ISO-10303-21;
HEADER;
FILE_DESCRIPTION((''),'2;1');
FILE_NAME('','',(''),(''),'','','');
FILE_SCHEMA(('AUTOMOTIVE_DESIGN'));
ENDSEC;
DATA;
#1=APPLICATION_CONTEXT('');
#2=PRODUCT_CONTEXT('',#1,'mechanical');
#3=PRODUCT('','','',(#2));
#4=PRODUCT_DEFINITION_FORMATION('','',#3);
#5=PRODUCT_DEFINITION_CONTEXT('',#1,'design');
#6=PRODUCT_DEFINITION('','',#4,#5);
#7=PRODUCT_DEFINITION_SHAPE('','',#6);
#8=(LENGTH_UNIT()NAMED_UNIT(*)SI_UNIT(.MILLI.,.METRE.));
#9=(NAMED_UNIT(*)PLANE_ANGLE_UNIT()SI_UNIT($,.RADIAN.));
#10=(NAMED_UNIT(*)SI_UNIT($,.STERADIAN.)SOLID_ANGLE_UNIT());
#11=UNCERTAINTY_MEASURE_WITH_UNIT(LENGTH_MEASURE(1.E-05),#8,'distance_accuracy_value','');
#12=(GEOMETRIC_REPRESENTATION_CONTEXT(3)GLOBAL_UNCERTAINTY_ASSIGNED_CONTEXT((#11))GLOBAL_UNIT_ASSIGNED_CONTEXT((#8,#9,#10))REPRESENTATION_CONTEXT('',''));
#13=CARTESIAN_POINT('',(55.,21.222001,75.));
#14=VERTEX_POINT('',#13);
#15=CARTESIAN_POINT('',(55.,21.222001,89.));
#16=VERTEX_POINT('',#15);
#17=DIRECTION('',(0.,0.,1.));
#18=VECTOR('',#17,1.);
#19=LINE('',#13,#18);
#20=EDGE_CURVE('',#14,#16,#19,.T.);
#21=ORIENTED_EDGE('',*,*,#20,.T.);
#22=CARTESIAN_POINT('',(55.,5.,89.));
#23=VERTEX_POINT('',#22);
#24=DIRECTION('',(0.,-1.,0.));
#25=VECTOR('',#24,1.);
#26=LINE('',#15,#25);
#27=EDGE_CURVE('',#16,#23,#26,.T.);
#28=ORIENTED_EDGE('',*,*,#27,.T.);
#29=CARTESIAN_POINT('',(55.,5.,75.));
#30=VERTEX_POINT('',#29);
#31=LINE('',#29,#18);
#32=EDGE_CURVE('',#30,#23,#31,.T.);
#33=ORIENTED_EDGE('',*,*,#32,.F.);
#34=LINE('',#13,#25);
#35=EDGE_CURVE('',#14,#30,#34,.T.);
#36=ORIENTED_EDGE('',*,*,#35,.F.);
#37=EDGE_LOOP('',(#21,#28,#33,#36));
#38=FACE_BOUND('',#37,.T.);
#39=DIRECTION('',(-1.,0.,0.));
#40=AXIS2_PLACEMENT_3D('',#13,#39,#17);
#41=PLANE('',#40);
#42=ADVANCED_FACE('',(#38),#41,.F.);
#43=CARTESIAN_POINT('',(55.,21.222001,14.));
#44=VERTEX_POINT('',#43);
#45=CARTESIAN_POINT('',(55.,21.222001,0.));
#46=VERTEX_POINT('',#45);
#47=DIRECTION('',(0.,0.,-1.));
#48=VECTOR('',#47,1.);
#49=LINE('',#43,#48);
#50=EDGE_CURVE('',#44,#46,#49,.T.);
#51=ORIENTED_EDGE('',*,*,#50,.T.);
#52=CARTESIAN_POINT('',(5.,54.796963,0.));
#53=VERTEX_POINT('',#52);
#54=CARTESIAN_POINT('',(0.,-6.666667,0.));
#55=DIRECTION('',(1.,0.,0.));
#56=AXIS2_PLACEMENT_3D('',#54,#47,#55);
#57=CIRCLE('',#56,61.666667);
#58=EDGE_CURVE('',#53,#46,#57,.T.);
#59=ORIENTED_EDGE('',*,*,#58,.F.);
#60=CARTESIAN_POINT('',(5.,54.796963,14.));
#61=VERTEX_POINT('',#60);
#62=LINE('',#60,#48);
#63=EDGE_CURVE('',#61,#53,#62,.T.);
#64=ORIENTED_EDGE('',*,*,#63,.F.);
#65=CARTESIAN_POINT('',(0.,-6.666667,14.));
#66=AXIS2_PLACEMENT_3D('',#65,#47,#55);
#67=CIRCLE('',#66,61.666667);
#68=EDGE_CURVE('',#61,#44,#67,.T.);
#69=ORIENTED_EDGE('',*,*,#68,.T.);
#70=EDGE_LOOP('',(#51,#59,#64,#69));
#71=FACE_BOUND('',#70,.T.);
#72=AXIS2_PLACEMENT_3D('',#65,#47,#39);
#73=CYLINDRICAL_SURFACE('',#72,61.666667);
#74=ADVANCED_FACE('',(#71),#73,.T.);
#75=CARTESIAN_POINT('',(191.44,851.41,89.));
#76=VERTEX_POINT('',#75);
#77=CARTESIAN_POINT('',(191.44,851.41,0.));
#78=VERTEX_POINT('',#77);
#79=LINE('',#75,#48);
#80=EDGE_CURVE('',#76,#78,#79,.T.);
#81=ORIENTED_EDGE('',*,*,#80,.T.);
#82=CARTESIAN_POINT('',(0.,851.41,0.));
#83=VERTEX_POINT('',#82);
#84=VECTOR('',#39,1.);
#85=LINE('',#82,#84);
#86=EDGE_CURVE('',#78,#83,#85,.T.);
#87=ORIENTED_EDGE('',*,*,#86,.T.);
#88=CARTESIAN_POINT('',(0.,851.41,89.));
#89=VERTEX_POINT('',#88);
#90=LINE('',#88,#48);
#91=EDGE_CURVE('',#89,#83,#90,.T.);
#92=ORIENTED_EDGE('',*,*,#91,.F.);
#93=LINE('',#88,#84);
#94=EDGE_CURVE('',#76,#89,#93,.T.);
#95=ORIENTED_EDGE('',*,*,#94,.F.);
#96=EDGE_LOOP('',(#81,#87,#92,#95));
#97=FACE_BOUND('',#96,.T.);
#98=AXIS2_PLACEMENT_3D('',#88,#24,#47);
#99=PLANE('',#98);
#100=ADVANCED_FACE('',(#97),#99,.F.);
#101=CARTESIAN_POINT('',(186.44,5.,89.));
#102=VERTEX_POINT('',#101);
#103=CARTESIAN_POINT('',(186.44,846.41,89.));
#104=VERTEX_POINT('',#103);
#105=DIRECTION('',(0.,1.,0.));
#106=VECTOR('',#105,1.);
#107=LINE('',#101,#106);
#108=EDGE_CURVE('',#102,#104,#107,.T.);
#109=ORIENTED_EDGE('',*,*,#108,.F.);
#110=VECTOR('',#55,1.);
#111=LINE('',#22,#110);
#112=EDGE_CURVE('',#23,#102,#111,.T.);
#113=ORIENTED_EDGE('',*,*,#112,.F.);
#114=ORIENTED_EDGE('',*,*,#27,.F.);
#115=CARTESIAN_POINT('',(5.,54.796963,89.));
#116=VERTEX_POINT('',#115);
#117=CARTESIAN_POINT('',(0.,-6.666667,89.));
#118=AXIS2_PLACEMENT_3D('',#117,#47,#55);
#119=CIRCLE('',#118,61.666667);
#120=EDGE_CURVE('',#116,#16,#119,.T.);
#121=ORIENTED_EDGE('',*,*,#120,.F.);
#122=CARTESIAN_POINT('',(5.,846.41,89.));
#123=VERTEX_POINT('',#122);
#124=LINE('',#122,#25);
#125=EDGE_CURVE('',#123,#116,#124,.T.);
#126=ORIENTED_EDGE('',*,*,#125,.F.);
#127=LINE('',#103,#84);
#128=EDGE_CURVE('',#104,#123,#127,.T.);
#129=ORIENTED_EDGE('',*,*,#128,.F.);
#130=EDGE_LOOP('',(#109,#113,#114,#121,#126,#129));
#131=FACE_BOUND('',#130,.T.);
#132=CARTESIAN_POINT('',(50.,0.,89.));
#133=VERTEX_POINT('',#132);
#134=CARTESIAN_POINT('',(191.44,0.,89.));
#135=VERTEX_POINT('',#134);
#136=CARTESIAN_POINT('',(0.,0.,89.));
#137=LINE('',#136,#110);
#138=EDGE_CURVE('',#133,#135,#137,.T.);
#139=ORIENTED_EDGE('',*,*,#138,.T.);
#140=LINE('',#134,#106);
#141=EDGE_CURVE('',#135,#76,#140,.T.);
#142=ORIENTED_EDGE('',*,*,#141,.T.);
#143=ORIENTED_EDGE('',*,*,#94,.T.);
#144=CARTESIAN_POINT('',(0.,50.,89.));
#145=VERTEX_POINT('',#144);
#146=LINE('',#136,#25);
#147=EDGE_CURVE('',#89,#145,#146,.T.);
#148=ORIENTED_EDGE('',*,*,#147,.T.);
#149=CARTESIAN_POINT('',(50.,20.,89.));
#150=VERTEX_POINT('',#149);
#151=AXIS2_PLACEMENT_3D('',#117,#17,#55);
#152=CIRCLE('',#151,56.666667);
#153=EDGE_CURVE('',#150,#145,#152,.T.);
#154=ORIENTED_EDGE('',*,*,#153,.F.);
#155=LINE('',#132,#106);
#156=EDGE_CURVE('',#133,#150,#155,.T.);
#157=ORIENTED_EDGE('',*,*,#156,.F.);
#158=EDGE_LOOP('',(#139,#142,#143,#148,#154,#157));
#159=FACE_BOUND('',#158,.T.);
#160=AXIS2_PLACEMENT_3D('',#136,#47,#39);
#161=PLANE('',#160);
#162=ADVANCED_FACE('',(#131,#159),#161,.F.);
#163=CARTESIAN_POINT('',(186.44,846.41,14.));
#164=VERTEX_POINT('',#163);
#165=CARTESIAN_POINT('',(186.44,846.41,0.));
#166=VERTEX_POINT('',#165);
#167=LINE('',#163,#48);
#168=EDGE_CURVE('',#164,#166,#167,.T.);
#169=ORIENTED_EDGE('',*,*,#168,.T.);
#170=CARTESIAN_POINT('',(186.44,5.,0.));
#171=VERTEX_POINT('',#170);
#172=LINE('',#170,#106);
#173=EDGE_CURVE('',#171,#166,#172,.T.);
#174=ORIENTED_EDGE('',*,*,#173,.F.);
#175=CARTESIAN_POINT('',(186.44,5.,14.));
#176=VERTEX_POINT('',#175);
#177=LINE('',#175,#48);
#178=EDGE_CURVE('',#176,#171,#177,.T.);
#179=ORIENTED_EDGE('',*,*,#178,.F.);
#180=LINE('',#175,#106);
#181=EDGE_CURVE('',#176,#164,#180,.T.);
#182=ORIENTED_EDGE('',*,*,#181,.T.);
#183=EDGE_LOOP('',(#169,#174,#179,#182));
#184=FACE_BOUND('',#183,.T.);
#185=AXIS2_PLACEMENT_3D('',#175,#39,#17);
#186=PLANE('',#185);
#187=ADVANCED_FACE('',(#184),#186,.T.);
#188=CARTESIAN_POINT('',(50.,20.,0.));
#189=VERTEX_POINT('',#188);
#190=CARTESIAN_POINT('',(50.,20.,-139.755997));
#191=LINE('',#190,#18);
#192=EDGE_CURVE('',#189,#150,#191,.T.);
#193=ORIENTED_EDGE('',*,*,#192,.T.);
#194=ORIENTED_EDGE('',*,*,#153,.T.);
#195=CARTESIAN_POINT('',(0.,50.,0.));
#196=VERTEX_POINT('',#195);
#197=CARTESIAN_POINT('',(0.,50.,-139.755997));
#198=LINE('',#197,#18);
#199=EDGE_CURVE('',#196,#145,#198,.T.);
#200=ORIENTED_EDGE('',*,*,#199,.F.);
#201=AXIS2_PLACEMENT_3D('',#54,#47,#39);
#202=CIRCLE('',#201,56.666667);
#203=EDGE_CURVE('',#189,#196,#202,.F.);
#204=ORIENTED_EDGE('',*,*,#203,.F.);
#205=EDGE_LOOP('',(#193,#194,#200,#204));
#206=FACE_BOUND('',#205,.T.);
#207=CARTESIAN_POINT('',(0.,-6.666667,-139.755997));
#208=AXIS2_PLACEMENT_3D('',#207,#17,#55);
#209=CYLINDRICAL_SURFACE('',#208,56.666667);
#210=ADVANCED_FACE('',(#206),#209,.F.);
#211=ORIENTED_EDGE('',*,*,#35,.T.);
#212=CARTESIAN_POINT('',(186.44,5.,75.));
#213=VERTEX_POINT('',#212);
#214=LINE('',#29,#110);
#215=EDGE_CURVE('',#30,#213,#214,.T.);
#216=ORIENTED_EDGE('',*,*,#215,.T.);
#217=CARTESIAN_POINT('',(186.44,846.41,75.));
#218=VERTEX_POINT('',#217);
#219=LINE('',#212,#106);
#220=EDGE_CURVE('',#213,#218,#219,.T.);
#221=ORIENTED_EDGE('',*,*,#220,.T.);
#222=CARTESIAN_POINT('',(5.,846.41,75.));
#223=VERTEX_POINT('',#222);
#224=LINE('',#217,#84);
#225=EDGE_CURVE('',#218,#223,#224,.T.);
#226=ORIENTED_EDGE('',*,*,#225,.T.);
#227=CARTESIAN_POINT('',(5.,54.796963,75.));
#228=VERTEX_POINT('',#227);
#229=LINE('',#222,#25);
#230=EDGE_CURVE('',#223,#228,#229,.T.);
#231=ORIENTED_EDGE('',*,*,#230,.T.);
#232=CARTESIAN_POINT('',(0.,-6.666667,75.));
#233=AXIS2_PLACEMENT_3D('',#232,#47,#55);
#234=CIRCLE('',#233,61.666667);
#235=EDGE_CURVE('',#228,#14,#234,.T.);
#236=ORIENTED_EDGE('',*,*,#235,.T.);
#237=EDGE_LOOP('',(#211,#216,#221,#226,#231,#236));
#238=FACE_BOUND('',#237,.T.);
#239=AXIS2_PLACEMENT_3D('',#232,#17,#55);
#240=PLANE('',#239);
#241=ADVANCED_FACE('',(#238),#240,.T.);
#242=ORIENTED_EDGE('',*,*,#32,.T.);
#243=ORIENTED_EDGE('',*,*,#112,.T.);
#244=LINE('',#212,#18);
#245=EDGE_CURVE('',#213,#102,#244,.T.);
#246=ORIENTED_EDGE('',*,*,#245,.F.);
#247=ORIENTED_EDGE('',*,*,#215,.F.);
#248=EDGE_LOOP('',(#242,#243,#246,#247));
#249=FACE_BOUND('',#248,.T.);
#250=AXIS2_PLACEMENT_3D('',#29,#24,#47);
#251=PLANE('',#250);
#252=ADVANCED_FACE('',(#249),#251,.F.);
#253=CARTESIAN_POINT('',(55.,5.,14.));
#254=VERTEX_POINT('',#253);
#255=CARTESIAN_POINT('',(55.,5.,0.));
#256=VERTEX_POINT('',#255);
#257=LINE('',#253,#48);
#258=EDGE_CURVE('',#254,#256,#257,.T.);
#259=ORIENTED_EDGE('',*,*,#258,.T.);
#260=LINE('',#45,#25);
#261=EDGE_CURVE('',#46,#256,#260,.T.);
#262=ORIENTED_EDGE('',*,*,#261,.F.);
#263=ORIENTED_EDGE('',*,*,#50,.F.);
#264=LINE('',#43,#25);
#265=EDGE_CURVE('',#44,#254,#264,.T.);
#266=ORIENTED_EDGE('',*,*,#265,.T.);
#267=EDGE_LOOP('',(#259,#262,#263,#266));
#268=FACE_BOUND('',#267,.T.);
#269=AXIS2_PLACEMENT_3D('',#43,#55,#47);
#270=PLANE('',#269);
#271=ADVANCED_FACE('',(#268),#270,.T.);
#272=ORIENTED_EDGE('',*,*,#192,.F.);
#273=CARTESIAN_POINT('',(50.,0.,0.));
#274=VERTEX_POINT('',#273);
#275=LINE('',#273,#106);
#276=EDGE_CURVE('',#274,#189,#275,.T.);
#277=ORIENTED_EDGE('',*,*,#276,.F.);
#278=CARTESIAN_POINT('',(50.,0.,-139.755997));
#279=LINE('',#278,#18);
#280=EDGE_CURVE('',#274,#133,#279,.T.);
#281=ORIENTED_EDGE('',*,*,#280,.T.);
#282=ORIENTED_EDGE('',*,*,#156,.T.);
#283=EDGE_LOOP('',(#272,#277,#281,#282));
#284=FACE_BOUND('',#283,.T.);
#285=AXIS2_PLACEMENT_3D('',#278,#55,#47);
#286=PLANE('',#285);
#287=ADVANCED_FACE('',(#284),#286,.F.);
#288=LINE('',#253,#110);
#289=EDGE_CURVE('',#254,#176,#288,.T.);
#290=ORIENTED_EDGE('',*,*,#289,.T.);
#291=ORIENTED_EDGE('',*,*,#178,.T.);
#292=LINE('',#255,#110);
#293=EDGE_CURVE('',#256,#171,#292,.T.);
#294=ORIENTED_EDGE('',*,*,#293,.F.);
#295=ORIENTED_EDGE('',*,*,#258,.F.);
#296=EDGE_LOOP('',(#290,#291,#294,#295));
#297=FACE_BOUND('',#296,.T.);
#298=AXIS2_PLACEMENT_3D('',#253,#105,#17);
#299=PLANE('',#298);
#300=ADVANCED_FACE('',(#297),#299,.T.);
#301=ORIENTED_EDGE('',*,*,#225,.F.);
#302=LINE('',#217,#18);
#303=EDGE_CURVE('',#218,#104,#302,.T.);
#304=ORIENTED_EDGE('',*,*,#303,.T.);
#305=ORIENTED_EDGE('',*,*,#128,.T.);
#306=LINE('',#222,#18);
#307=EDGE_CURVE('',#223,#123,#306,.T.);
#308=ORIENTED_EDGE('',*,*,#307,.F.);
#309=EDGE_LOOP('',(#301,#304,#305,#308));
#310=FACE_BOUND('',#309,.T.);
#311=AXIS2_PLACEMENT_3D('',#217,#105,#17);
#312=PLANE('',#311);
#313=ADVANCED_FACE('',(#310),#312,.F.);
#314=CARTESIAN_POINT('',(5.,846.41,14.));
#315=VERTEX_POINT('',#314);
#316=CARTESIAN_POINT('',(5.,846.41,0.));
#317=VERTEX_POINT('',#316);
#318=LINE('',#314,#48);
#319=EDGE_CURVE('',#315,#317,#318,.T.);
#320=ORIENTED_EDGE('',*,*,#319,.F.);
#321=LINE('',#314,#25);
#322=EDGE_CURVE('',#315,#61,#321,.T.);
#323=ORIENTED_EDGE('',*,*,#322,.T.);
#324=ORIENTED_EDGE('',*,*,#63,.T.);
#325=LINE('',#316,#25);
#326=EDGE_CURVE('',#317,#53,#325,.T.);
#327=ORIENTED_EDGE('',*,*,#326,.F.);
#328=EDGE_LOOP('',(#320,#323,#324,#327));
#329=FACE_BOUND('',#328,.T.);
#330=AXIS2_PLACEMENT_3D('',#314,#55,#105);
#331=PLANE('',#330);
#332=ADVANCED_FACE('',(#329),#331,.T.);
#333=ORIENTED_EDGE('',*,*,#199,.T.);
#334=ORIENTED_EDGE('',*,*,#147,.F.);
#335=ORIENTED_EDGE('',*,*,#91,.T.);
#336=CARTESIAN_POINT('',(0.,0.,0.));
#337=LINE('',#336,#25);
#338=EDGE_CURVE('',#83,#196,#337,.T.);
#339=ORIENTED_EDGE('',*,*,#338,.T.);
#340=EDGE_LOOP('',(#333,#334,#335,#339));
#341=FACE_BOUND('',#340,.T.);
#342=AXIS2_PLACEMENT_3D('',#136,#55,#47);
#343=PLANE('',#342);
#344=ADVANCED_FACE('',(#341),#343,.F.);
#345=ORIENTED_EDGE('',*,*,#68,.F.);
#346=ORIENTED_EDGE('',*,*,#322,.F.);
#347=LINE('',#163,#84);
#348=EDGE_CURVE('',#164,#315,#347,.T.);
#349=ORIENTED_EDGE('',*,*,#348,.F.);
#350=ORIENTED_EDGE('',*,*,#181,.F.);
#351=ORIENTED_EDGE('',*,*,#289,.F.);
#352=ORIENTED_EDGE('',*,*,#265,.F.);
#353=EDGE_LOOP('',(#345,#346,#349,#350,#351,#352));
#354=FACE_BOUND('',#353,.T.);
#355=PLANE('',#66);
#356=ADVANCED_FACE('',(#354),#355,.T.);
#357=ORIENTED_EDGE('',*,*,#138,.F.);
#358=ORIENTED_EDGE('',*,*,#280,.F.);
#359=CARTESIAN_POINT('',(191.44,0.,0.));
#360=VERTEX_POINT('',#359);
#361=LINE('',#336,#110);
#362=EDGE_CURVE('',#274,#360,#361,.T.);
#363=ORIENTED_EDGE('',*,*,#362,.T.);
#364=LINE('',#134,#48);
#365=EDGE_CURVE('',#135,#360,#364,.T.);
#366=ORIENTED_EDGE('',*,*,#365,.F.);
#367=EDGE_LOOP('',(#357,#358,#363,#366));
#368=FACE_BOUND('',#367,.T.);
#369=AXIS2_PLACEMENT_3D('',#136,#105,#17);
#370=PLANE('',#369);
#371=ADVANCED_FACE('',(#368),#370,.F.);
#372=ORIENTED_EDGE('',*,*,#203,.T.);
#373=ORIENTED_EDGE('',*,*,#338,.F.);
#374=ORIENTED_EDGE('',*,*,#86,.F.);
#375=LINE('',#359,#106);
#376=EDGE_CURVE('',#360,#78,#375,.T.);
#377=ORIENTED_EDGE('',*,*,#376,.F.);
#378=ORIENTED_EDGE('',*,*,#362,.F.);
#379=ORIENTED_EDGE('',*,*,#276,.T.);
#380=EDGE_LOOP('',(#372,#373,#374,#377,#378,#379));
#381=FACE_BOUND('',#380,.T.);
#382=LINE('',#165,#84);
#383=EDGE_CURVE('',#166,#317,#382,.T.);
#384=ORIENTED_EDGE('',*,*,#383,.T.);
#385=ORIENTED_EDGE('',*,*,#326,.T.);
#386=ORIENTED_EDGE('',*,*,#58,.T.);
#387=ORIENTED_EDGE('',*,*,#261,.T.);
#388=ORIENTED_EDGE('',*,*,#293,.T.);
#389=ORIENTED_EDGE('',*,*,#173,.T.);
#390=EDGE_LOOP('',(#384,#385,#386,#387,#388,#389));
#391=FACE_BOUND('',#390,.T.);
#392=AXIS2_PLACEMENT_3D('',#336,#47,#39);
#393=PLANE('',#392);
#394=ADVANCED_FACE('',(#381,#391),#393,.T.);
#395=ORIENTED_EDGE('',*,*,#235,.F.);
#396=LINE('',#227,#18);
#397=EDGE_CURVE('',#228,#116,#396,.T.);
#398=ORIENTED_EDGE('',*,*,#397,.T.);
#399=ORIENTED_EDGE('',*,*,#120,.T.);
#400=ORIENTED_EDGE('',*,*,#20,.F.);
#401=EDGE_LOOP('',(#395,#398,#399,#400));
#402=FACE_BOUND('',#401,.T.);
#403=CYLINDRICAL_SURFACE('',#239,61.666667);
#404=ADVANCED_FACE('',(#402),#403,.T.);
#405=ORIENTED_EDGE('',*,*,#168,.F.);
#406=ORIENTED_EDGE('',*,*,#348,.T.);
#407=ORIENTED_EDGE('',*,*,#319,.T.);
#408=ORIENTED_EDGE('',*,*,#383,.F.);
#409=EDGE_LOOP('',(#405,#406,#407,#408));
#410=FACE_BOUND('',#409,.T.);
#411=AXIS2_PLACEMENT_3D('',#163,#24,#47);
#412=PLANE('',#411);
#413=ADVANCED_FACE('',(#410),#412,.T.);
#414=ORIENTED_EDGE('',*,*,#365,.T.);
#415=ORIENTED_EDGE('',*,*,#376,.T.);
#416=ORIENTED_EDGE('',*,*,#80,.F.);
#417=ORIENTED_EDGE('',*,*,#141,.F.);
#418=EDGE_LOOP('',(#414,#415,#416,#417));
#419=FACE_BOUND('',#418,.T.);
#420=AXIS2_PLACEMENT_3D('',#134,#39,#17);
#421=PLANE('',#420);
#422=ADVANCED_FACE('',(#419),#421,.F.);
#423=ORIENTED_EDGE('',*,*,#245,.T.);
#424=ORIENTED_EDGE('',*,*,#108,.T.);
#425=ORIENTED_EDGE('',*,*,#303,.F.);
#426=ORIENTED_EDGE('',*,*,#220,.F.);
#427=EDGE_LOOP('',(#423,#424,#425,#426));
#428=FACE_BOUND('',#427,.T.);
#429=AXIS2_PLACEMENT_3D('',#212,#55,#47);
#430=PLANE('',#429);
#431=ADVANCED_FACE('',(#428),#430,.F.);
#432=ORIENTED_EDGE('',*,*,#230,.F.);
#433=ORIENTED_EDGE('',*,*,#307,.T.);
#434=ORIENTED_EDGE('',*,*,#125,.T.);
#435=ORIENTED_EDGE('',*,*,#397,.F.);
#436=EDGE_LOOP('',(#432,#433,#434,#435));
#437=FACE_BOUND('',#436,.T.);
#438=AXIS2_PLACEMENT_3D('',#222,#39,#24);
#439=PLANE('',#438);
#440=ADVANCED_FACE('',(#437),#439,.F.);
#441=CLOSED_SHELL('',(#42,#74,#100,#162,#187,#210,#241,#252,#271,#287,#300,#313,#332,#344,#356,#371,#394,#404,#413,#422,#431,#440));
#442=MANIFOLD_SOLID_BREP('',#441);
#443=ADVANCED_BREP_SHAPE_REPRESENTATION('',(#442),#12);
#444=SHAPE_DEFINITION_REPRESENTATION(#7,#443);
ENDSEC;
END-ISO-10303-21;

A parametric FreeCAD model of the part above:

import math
import FreeCAD as App
import Part
import Sketcher

V = App.Vector
Q = App.Units.Quantity


def add_polygon(sketch, points):
    """Adds a closed chain of lines whose ends are joined by coincident constraints."""
    first, n = sketch.GeometryCount, len(points)
    for a, b in zip(points, points[1:] + points[:1]):
        sketch.addGeometry(Part.LineSegment(App.Vector(*a, 0), App.Vector(*b, 0)), False)
    for i in range(n):
        sketch.addConstraint(Sketcher.Constraint("Coincident", first + i, 2, first + (i + 1) % n, 1))

doc = App.newDocument("Part")
params = doc.addObject("Spreadsheet::Sheet", "Params")
for row, (alias, value) in enumerate([
    ("sketch1_width", "191.44 mm"),
    ("sketch1_height", "851.41 mm"),
    ("pad1_length", "89 mm"),
    ("sketch2_height", "20 mm"),
    ("pocket1_length", "89 mm"),
    ("sketch3_width", "131.44 mm"),
    ("sketch3_height", "841.41 mm"),
    ("pocket2_length", "14 mm"),
], start=1):
    params.set(f"A{row}", alias)
    params.set(f"B{row}", "=" + value)
    params.setAlias(f"B{row}", alias)

body = doc.addObject("PartDesign::Body", "Body")

# Sketch on XY plane
sketch1 = doc.addObject("Sketcher::SketchObject", "Sketch")
body.addObject(sketch1)
sketch1.AttachmentSupport = (doc.XY_Plane, [""])
sketch1.MapMode = "FlatFace"
add_polygon(sketch1, [(0, 851), (0, 0), (191, 0), (191, 851)])  # lines 0-3
sketch1.addConstraint([
    Sketcher.Constraint("Vertical", 0),
    Sketcher.Constraint("Horizontal", 1),
    Sketcher.Constraint("Vertical", 2),
    Sketcher.Constraint("Horizontal", 3),
    Sketcher.Constraint("Coincident", 0, 2, -1, 1),
    Sketcher.Constraint("DistanceX", 1, 1, 1, 2, Q("191.44 mm")),
    Sketcher.Constraint("DistanceY", 0, 2, 0, 1, Q("851.41 mm")),
])
sketch1.setExpression("Constraints[9]", "Params.sketch1_width")
sketch1.setExpression("Constraints[10]", "Params.sketch1_height")
pad1 = doc.addObject("PartDesign::Pad", "Pad")
body.addObject(pad1)
pad1.Profile = sketch1
pad1.setExpression("Length", "Params.pad1_length")

# Sketch on XY plane
sketch2 = doc.addObject("Sketcher::SketchObject", "Sketch001")
body.addObject(sketch2)
sketch2.AttachmentSupport = (doc.XY_Plane, [""])
sketch2.MapMode = "FlatFace"
sketch2.AttachmentOffset = App.Placement(V(0, 0, 89), App.Rotation())
sketch2.addGeometry([
    Part.LineSegment(V(50, 0, 0), V(50, 20, 0)),  # 0
    Part.ArcOfCircle(Part.Circle(V(0, -7, 0), V(0, 0, 1), 57), math.radians(28), math.radians(90)),  # 1
    Part.LineSegment(V(0, 50, 0), V(-43, 50, 0)),  # 2
    Part.LineSegment(V(-43, 50, 0), V(0, -55, 0)),  # 3
    Part.LineSegment(V(0, -55, 0), V(50, 0, 0)),  # 4
], False)
sketch2.addConstraint([
    Sketcher.Constraint("Coincident", 0, 2, 1, 1),
    Sketcher.Constraint("Tangent", 1, 2, 2, 1),
    Sketcher.Constraint("Coincident", 2, 2, 3, 1),
    Sketcher.Constraint("Coincident", 3, 2, 4, 1),
    Sketcher.Constraint("Coincident", 4, 2, 0, 1),
    Sketcher.Constraint("Vertical", 0),
    Sketcher.Constraint("Horizontal", 2),
    Sketcher.Constraint("PointOnObject", 1, 3, -2),
    Sketcher.Constraint("PointOnObject", 3, 2, -2),
    Sketcher.Constraint("PointOnObject", 4, 2, -1),
    Sketcher.Constraint("DistanceY", 0, 1, 0, 2, Q("20 mm")),
    Sketcher.Constraint("DistanceX", -1, 1, 0, 2, Q("50 mm")),
    Sketcher.Constraint("DistanceY", -1, 1, 1, 2, Q("50 mm")),
    Sketcher.Constraint("Distance", 3, Q("113.055152 mm")),
    Sketcher.Constraint("DistanceX", 2, 2, 2, 1, Q("42.502715 mm")),
])
sketch2.setExpression("Constraints[10]", "Params.sketch2_height")
pocket1 = doc.addObject("PartDesign::Pocket", "Pocket")
body.addObject(pocket1)
pocket1.Profile = sketch2
pocket1.setExpression("Length", "Params.pocket1_length")

# Sketch on XY plane
sketch3 = doc.addObject("Sketcher::SketchObject", "Sketch002")
body.addObject(sketch3)
sketch3.AttachmentSupport = (doc.XY_Plane, [""])
sketch3.MapMode = "FlatFace"
sketch3.AttachmentOffset = App.Placement(V(0, 0, 89), App.Rotation())
sketch3.addGeometry([
    Part.LineSegment(V(55, 21, 0), V(55, 5, 0)),  # 0
    Part.LineSegment(V(55, 5, 0), V(186, 5, 0)),  # 1
    Part.LineSegment(V(186, 5, 0), V(186, 846, 0)),  # 2
    Part.LineSegment(V(186, 846, 0), V(5, 846, 0)),  # 3
    Part.LineSegment(V(5, 846, 0), V(5, 55, 0)),  # 4
    Part.ArcOfCircle(Part.Circle(V(0, -7, 0), V(0, 0, 1), 62), math.radians(27), math.radians(85)),  # 5
], False)
sketch3.addConstraint([
    Sketcher.Constraint("Coincident", 0, 2, 1, 1),
    Sketcher.Constraint("Coincident", 1, 2, 2, 1),
    Sketcher.Constraint("Coincident", 2, 2, 3, 1),
    Sketcher.Constraint("Coincident", 3, 2, 4, 1),
    Sketcher.Constraint("Coincident", 4, 2, 5, 2),
    Sketcher.Constraint("Coincident", 5, 1, 0, 1),
    Sketcher.Constraint("Vertical", 0),
    Sketcher.Constraint("Horizontal", 1),
    Sketcher.Constraint("Vertical", 2),
    Sketcher.Constraint("Horizontal", 3),
    Sketcher.Constraint("Vertical", 4),
    Sketcher.Constraint("PointOnObject", 5, 3, -2),
    Sketcher.Constraint("DistanceX", -1, 1, 0, 2, Q("55 mm")),
    Sketcher.Constraint("DistanceY", -1, 1, 0, 2, Q("5 mm")),
    Sketcher.Constraint("DistanceX", -1, 1, 3, 2, Q("5 mm")),
    Sketcher.Constraint("DistanceX", 1, 1, 1, 2, Q("131.44 mm")),
    Sketcher.Constraint("DistanceY", 2, 1, 2, 2, Q("841.41 mm")),
    Sketcher.Constraint("DistanceY", 0, 2, 0, 1, Q("16.222001 mm")),
    Sketcher.Constraint("Radius", 5, Q("61.666667 mm")),
])
sketch3.setExpression("Constraints[15]", "Params.sketch3_width")
sketch3.setExpression("Constraints[16]", "Params.sketch3_height")
pocket2 = doc.addObject("PartDesign::Pocket", "Pocket001")
body.addObject(pocket2)
pocket2.Profile = sketch3
pocket2.setExpression("Length", "Params.pocket2_length")
doc.recompute()

datumplane = doc.addObject("PartDesign::Plane", "DatumPlane")
body.addObject(datumplane)
datumplane.AttachmentSupport = (doc.XY_Plane, [""])
datumplane.MapMode = "FlatFace"
datumplane.AttachmentOffset = App.Placement(V(0, 0, 44.5), App.Rotation())
mirrored = doc.addObject("PartDesign::Mirrored", "Mirrored")
body.addObject(mirrored)
mirrored.Originals = [pocket2]
mirrored.MirrorPlane = (datumplane, [""])
body.Tip = mirrored

doc.recompute()
